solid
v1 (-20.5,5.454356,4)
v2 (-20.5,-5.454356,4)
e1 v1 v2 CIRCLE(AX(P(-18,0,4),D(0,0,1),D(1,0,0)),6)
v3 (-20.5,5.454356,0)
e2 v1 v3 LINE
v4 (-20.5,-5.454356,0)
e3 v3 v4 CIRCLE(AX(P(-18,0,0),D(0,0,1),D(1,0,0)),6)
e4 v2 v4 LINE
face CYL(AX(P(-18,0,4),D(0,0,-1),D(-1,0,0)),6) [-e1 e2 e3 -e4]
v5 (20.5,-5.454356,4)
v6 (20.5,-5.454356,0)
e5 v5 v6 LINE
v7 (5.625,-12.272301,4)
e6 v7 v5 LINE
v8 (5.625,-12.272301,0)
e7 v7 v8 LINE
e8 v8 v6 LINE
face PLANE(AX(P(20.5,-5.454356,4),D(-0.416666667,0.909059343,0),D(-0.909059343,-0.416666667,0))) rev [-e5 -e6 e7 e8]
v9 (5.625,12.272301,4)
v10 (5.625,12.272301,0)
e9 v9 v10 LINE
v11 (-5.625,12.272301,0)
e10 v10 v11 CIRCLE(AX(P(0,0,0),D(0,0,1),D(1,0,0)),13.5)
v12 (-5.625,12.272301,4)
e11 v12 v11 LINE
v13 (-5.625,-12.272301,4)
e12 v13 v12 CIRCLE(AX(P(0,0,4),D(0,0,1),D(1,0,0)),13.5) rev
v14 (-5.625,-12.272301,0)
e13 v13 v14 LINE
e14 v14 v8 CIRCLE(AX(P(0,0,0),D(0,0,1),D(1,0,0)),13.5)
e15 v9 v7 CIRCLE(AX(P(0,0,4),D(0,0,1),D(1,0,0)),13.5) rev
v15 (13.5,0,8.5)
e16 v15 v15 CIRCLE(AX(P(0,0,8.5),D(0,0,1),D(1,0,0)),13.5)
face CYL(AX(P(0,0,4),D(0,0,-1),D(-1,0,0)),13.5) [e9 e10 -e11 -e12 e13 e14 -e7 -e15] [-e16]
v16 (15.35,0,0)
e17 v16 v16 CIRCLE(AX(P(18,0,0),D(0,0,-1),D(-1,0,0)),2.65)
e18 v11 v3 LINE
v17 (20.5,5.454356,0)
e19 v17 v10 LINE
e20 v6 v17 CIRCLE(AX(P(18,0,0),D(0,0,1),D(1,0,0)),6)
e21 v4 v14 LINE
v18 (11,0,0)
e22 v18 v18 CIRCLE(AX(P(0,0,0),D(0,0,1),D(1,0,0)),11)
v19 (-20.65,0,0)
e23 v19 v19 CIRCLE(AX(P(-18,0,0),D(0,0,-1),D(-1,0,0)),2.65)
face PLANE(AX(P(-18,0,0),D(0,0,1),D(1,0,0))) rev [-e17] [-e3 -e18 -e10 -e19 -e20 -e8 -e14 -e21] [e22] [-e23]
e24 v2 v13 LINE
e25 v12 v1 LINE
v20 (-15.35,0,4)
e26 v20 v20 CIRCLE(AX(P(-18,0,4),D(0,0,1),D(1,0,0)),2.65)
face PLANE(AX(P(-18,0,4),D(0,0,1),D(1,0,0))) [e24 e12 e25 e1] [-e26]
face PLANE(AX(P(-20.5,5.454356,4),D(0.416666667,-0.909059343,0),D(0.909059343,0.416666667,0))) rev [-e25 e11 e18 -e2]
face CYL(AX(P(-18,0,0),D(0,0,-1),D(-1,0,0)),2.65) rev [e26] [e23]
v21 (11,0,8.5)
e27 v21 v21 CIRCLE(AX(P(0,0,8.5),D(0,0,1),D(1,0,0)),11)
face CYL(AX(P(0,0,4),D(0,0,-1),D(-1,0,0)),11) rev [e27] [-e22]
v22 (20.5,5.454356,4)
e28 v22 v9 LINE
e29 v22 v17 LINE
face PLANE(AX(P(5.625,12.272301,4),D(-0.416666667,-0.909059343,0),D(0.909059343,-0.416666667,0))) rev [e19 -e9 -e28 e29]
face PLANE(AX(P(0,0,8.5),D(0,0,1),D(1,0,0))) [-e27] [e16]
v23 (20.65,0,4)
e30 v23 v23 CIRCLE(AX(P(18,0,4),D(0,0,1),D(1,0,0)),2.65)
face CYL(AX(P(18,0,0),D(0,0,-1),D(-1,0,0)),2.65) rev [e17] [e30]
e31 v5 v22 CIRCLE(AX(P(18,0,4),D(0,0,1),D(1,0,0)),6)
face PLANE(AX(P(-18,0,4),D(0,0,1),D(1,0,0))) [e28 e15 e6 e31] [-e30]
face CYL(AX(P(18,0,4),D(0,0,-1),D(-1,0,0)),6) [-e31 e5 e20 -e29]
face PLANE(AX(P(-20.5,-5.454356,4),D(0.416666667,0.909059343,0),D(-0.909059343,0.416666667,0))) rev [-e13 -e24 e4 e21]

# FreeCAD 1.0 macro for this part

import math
import FreeCAD as App
import Part
import Sketcher

doc = App.newDocument("Part")
body = doc.addObject("PartDesign::Body", "Body")

# Sketch on XY plane
sketch1 = body.newObject("Sketcher::SketchObject", "Sketch")
sketch1.AttachmentSupport = (doc.getObject("XY_Plane"), [""])
sketch1.MapMode = "FlatFace"
sketch1.addGeometry([
    Part.LineSegment(App.Vector(-5.625, 12.272301, 0), App.Vector(-20.5, 5.454356, 0)),  # 0
    Part.ArcOfCircle(Part.Circle(App.Vector(-18, 0, 0), App.Vector(0, 0, 1), 6), math.radians(114.624318), math.radians(245.375682)),  # 1
    Part.LineSegment(App.Vector(-20.5, -5.454356, 0), App.Vector(-5.625, -12.272301, 0)),  # 2
    Part.ArcOfCircle(Part.Circle(App.Vector(0, 0, 0), App.Vector(0, 0, 1), 13.5), math.radians(-114.624318), math.radians(-65.375682)),  # 3
    Part.LineSegment(App.Vector(5.625, -12.272301, 0), App.Vector(20.5, -5.454356, 0)),  # 4
    Part.ArcOfCircle(Part.Circle(App.Vector(18, 0, 0), App.Vector(0, 0, 1), 6), math.radians(-65.375682), math.radians(65.375682)),  # 5
    Part.LineSegment(App.Vector(20.5, 5.454356, 0), App.Vector(5.625, 12.272301, 0)),  # 6
    Part.ArcOfCircle(Part.Circle(App.Vector(0, 0, 0), App.Vector(0, 0, 1), 13.5), math.radians(65.375682), math.radians(114.624318)),  # 7
    Part.Circle(App.Vector(0, 0, 0), App.Vector(0, 0, 1), 11),  # 8
], False)
sketch1.addConstraint([
    Sketcher.Constraint("Tangent", 0, 2, 1, 1),
    Sketcher.Constraint("Tangent", 1, 2, 2, 1),
    Sketcher.Constraint("Tangent", 2, 2, 3, 1),
    Sketcher.Constraint("Tangent", 3, 2, 4, 1),
    Sketcher.Constraint("Tangent", 4, 2, 5, 1),
    Sketcher.Constraint("Tangent", 5, 2, 6, 1),
    Sketcher.Constraint("Tangent", 6, 2, 7, 1),
    Sketcher.Constraint("Tangent", 7, 2, 0, 1),
    Sketcher.Constraint("Coincident", 3, 3, -1, 1),
    Sketcher.Constraint("Coincident", 7, 3, -1, 1),
    Sketcher.Constraint("Coincident", 8, 3, -1, 1),
    Sketcher.Constraint("Equal", 1, 5),
    Sketcher.Constraint("Equal", 3, 7),
    Sketcher.Constraint("Symmetric", 1, 3, 5, 3, -1, 1),
    Sketcher.Constraint("PointOnObject", 1, 3, -1),
    Sketcher.Constraint("Diameter", 8, 22.0),
    Sketcher.Constraint("Radius", 1, 6.0),
    Sketcher.Constraint("Radius", 3, 13.5),
    Sketcher.Constraint("DistanceX", 1, 3, -1, 1, 18.0),
])
pad1 = body.newObject("PartDesign::Pad", "Pad")
pad1.Profile = sketch1
pad1.Length = 4

# Sketch on XY plane
sketch2 = body.newObject("Sketcher::SketchObject", "Sketch001")
sketch2.AttachmentSupport = (doc.getObject("XY_Plane"), [""])
sketch2.MapMode = "FlatFace"
sketch2.addGeometry([
    Part.Circle(App.Vector(0, 0, 0), App.Vector(0, 0, 1), 13.5),
    Part.Circle(App.Vector(0, 0, 0), App.Vector(0, 0, 1), 11),
], False)
sketch2.addConstraint([
    Sketcher.Constraint("Coincident", 0, 3, -1, 1),
    Sketcher.Constraint("Coincident", 1, 3, -1, 1),
    Sketcher.Constraint("Diameter", 0, 27.0),
    Sketcher.Constraint("Diameter", 1, 22.0),
])
pad2 = body.newObject("PartDesign::Pad", "Pad001")
pad2.Profile = sketch2
pad2.Length = 8.5

# Sketch on XY plane
sketch3 = body.newObject("Sketcher::SketchObject", "Sketch002")
sketch3.AttachmentSupport = (doc.getObject("XY_Plane"), [""])
sketch3.MapMode = "FlatFace"
sketch3.addGeometry([
    Part.Circle(App.Vector(-18, 0, 0), App.Vector(0, 0, 1), 2.65),
    Part.Circle(App.Vector(18, 0, 0), App.Vector(0, 0, 1), 2.65),
], False)
sketch3.addConstraint([
    Sketcher.Constraint("Equal", 0, 1),
    Sketcher.Constraint("Symmetric", 0, 3, 1, 3, -1, 1),
    Sketcher.Constraint("PointOnObject", 0, 3, -1),
    Sketcher.Constraint("Diameter", 0, 5.3),
    Sketcher.Constraint("DistanceX", 0, 3, -1, 1, 18.0),
])
doc.recompute()
hole = body.newObject("PartDesign::Hole", "Hole")
hole.Profile = sketch3
hole.ThreadType = "None"
hole.Diameter = 5.3
hole.DepthType = "ThroughAll"
hole.Reversed = True

doc.recompute()
